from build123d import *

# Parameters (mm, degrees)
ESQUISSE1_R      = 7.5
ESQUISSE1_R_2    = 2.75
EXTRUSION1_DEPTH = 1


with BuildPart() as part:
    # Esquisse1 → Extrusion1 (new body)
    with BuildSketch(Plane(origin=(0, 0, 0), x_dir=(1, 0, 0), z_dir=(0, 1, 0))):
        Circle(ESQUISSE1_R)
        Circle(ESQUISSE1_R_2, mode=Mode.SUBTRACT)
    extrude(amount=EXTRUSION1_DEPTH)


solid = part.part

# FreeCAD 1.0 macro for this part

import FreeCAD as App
import Part
import Sketcher

V = App.Vector
Q = App.Units.Quantity

doc = App.newDocument("Part")
params = doc.addObject("Spreadsheet::Sheet", "Params")
for row, (alias, value) in enumerate([
    ("sketch1_diameter", "15 mm"),
    ("sketch1_diameter2", "5.5 mm"),
    ("pad1_length", "1 mm"),
], start=1):
    params.set(f"A{row}", alias)
    params.set(f"B{row}", "=" + value)
    params.setAlias(f"B{row}", alias)

body = doc.addObject("PartDesign::Body", "Body")

# Sketch on XZ plane
sketch1 = doc.addObject("Sketcher::SketchObject", "Sketch")
body.addObject(sketch1)
sketch1.AttachmentSupport = (doc.XZ_Plane, [""])
sketch1.MapMode = "FlatFace"
sketch1.addGeometry([
    Part.Circle(V(0, 0, 0), V(0, 0, 1), 7.5),
    Part.Circle(V(0, 0, 0), V(0, 0, 1), 2.8),
], False)
sketch1.addConstraint([
    Sketcher.Constraint("Coincident", 0, 3, -1, 1),
    Sketcher.Constraint("Coincident", 1, 3, -1, 1),
    Sketcher.Constraint("Diameter", 0, Q("15 mm")),
    Sketcher.Constraint("Diameter", 1, Q("5.5 mm")),
])
sketch1.setExpression("Constraints[2]", "Params.sketch1_diameter")
sketch1.setExpression("Constraints[3]", "Params.sketch1_diameter2")
pad1 = doc.addObject("PartDesign::Pad", "Pad")
body.addObject(pad1)
pad1.Profile = sketch1
pad1.setExpression("Length", "Params.pad1_length")
pad1.Reversed = True

doc.recompute()
